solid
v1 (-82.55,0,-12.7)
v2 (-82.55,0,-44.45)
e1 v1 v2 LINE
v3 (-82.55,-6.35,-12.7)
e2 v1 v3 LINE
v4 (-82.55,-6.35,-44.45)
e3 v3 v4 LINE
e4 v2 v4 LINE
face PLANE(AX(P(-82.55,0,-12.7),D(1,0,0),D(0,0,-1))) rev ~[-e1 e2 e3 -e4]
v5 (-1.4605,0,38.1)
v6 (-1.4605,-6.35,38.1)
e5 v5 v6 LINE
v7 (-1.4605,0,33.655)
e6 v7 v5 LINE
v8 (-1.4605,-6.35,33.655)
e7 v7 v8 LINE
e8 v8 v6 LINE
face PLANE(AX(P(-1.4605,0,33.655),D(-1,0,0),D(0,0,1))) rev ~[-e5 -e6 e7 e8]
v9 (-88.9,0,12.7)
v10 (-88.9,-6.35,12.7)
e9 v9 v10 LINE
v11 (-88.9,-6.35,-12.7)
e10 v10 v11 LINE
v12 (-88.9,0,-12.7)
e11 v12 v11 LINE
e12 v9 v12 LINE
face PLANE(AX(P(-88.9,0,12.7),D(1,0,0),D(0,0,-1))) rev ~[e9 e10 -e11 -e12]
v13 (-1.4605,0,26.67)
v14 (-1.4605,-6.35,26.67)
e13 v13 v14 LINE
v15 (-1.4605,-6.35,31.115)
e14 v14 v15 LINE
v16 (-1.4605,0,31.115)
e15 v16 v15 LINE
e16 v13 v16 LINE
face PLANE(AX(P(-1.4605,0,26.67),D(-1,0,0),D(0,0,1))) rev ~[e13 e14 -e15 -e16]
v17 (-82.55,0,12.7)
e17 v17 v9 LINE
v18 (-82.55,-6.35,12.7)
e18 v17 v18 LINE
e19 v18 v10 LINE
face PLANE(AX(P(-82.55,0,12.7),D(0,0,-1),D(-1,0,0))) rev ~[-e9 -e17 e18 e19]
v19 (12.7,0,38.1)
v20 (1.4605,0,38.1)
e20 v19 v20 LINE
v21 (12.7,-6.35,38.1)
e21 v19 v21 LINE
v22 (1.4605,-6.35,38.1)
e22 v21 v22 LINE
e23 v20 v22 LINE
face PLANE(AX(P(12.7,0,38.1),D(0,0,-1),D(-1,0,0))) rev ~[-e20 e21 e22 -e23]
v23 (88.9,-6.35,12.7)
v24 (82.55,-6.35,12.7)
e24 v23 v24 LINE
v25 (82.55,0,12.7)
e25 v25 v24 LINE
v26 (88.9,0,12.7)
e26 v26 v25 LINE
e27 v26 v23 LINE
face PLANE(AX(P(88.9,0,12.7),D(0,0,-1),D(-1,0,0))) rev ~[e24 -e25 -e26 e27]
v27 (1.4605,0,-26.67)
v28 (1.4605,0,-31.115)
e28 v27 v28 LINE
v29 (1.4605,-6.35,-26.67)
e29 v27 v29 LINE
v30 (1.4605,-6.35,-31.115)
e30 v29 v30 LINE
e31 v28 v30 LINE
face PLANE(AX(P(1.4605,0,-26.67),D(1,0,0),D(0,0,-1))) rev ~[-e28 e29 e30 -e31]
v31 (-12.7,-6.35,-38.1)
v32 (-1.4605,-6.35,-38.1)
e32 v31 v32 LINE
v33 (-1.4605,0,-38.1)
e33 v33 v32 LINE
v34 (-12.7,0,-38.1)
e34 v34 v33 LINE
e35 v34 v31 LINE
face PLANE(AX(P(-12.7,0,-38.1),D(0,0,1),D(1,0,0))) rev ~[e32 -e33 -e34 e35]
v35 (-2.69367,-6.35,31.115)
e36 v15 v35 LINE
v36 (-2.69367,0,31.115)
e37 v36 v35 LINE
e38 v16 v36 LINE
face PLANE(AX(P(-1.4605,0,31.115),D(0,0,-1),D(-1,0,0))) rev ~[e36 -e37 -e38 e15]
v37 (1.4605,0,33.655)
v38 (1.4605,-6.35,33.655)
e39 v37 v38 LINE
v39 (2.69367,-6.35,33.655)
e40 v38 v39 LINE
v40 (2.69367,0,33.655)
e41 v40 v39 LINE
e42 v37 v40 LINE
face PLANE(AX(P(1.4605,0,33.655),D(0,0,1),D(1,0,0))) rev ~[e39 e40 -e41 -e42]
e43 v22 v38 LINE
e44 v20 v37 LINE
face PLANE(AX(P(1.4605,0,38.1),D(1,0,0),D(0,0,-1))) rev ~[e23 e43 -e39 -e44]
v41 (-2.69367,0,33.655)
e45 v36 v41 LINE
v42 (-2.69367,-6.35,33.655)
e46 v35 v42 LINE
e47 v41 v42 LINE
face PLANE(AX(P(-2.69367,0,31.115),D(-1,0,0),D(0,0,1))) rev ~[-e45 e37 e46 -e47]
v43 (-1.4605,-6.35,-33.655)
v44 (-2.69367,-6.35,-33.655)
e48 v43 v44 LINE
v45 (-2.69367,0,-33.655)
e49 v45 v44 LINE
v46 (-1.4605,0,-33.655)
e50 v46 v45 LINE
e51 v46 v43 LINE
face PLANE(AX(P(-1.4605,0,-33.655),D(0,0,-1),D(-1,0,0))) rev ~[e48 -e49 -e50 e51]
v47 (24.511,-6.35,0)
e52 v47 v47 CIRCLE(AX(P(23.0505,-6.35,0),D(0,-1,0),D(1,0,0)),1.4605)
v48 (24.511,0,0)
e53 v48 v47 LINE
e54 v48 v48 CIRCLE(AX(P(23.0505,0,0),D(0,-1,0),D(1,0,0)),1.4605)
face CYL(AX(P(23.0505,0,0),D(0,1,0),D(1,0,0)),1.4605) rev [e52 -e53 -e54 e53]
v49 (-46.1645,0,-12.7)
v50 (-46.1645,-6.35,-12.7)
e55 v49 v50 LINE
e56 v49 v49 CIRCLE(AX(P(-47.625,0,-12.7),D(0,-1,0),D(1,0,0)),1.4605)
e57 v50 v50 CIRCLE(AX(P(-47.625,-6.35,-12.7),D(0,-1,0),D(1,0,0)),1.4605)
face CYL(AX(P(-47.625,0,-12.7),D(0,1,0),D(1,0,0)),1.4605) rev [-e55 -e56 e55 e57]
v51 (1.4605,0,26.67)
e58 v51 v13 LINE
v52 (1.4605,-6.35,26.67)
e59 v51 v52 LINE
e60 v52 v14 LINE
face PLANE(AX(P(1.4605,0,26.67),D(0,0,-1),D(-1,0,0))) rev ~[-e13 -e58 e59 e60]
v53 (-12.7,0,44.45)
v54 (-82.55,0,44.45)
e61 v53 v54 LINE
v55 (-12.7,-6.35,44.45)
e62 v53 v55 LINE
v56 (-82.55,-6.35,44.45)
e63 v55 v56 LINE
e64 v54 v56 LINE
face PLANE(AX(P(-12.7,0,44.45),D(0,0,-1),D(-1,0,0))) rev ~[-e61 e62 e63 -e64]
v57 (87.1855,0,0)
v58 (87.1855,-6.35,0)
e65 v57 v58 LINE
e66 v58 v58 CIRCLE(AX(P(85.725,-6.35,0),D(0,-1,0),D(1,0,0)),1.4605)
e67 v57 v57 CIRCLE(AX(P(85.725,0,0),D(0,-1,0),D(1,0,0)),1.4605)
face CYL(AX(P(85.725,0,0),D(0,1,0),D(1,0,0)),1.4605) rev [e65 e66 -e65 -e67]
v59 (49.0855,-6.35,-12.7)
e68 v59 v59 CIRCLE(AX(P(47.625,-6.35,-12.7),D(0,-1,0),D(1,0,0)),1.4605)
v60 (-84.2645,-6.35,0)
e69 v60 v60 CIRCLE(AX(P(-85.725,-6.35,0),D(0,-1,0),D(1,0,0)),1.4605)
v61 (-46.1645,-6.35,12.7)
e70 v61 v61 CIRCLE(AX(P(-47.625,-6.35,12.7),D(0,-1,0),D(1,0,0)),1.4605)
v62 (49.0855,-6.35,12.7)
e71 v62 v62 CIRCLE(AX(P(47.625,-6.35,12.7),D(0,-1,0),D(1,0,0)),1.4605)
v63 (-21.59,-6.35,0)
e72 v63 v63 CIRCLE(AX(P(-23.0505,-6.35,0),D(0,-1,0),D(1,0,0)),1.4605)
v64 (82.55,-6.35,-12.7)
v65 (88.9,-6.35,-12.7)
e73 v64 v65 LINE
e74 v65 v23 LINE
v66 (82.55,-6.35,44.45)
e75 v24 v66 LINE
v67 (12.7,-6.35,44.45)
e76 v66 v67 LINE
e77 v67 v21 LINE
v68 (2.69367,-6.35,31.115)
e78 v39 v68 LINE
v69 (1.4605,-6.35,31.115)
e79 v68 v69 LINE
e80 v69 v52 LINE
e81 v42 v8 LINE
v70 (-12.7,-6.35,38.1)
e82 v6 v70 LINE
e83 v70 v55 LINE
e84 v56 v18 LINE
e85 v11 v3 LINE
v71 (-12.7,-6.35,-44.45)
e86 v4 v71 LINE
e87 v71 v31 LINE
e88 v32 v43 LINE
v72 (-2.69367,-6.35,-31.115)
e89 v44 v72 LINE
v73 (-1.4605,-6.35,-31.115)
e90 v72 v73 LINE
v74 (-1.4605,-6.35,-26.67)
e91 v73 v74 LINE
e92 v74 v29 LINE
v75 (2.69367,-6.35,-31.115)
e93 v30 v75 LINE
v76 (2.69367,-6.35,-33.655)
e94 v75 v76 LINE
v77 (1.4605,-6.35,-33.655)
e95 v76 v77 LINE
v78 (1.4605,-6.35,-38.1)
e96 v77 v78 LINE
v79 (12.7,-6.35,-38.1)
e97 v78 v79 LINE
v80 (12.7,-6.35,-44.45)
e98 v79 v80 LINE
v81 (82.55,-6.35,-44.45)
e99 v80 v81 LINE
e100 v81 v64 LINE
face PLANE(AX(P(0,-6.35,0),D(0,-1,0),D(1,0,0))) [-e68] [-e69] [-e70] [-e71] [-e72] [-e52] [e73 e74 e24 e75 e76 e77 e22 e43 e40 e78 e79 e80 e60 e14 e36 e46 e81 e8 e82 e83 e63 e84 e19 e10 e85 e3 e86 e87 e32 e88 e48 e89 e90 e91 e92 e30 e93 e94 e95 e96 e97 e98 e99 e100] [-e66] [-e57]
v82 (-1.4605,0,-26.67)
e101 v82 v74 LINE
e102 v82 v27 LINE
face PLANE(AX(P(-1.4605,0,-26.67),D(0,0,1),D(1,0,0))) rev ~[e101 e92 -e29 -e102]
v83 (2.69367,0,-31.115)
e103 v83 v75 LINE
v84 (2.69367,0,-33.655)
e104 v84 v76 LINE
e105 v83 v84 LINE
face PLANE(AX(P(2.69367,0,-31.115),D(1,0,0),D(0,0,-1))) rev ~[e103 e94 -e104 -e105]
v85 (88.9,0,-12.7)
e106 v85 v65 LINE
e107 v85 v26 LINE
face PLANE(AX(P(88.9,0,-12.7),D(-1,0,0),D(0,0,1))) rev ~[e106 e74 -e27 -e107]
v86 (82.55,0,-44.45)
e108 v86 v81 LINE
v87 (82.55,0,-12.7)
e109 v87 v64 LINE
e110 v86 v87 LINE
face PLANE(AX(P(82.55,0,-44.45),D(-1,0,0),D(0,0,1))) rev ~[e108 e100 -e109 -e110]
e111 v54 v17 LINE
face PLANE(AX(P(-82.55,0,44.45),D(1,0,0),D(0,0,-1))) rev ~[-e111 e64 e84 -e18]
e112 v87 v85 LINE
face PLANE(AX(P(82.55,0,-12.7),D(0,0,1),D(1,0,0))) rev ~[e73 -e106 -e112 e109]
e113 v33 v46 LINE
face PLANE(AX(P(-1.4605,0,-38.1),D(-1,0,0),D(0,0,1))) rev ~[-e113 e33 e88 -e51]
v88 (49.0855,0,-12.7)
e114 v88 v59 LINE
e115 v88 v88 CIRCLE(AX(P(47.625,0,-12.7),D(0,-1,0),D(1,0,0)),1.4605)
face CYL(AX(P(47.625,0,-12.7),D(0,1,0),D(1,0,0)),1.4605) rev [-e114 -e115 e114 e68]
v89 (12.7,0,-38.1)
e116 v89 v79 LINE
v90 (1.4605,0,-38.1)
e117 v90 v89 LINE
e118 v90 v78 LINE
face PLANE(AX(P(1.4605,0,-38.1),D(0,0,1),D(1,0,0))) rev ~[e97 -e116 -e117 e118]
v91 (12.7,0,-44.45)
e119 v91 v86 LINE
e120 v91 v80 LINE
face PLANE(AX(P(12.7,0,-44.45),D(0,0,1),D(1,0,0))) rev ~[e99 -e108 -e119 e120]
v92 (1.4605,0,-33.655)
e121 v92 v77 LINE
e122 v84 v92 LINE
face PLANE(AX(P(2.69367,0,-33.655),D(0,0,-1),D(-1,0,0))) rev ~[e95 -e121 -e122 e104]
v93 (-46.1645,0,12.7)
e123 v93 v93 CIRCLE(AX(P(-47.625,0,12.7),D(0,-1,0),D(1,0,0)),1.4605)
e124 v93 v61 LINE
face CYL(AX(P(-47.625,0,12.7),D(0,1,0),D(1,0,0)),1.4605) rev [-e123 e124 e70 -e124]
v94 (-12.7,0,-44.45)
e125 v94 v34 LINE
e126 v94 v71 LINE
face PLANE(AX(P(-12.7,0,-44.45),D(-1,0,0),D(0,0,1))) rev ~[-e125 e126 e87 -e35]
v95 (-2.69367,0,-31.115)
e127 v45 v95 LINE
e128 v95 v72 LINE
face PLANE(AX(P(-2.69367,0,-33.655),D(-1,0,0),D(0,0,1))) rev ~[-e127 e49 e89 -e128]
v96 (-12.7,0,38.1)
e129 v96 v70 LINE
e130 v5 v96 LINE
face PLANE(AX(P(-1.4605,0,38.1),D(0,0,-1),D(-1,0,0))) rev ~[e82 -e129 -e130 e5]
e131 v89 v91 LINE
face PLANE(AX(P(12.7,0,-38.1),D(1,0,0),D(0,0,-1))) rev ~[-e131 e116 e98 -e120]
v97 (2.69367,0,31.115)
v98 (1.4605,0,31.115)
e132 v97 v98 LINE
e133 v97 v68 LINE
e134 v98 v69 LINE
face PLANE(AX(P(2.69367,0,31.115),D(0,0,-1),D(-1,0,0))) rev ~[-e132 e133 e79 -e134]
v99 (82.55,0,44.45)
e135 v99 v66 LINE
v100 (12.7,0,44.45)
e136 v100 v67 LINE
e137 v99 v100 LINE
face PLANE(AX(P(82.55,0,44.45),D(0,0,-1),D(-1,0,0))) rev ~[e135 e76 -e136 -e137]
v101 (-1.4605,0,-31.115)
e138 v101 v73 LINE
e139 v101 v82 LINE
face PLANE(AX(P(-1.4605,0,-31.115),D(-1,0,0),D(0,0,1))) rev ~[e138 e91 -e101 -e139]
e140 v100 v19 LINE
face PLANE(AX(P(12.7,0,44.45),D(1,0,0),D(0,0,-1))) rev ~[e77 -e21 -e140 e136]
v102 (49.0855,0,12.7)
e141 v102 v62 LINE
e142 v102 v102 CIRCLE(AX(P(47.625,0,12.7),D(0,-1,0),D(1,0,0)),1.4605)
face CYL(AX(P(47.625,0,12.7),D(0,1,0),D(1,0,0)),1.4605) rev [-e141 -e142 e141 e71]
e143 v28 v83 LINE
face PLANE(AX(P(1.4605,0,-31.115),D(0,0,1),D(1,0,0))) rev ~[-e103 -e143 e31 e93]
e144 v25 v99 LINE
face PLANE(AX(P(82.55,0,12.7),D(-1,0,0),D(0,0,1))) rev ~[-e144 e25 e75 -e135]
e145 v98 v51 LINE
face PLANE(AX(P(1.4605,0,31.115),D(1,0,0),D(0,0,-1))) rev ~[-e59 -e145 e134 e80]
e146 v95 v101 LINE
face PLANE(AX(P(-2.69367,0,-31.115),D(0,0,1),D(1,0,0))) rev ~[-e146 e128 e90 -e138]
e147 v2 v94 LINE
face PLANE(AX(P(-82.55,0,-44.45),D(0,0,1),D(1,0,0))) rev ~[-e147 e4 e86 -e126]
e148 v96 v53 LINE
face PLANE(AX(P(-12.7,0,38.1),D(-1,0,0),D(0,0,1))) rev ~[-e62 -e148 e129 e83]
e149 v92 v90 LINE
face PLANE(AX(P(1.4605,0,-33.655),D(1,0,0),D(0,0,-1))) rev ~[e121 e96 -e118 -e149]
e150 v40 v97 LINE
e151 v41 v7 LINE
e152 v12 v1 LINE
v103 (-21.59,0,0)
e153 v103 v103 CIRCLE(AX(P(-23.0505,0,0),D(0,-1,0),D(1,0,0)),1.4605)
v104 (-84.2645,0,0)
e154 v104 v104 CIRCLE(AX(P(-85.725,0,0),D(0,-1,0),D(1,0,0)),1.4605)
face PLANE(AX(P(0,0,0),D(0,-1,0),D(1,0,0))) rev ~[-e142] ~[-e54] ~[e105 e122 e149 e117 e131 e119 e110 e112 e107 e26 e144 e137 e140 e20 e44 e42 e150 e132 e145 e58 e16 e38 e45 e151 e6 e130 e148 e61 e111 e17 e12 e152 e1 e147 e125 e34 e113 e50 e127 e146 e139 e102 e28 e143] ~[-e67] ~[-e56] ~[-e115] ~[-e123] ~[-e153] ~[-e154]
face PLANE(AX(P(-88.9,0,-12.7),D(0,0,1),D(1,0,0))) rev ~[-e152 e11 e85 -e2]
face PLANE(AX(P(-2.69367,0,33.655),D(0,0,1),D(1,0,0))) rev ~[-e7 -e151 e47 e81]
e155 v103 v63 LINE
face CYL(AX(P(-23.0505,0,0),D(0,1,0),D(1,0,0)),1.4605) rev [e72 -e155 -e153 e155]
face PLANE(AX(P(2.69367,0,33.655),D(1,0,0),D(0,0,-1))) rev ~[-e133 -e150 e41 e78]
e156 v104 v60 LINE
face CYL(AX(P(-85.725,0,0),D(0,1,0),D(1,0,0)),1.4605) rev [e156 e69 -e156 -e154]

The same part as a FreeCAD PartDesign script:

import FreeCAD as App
import Part
import Sketcher
Q = App.Units.Quantity

doc = App.newDocument("Part")
body = doc.addObject("PartDesign::Body", "Body")

# Sketch on XZ plane
sketch1 = body.newObject("Sketcher::SketchObject", "Sketch")
sketch1.AttachmentSupport = (doc.getObject("XZ_Plane"), [""])
sketch1.MapMode = "FlatFace"
sketch1.addGeometry([
    Part.LineSegment(App.Vector(82.5, 12.7, 0), App.Vector(82.5, 44.5, 0)),  # 0
    Part.LineSegment(App.Vector(82.5, 44.5, 0), App.Vector(12.7, 44.5, 0)),  # 1
    Part.LineSegment(App.Vector(12.7, 44.5, 0), App.Vector(12.7, 38.1, 0)),  # 2
    Part.LineSegment(App.Vector(12.7, 38.1, 0), App.Vector(1.5, 38.1, 0)),  # 3
    Part.LineSegment(App.Vector(1.5, 38.1, 0), App.Vector(1.5, 33.7, 0)),  # 4
    Part.LineSegment(App.Vector(1.5, 33.7, 0), App.Vector(2.7, 33.7, 0)),  # 5
    Part.LineSegment(App.Vector(2.7, 33.7, 0), App.Vector(2.7, 31.1, 0)),  # 6
    Part.LineSegment(App.Vector(2.7, 31.1, 0), App.Vector(1.5, 31.1, 0)),  # 7
    Part.LineSegment(App.Vector(1.5, 31.1, 0), App.Vector(1.5, 26.7, 0)),  # 8
    Part.LineSegment(App.Vector(1.5, 26.7, 0), App.Vector(-1.5, 26.7, 0)),  # 9
    Part.LineSegment(App.Vector(-1.5, 26.7, 0), App.Vector(-1.5, 31.1, 0)),  # 10
    Part.LineSegment(App.Vector(-1.5, 31.1, 0), App.Vector(-2.7, 31.1, 0)),  # 11
    Part.LineSegment(App.Vector(-2.7, 31.1, 0), App.Vector(-2.7, 33.7, 0)),  # 12
    Part.LineSegment(App.Vector(-2.7, 33.7, 0), App.Vector(-1.5, 33.7, 0)),  # 13
    Part.LineSegment(App.Vector(-1.5, 33.7, 0), App.Vector(-1.5, 38.1, 0)),  # 14
    Part.LineSegment(App.Vector(-1.5, 38.1, 0), App.Vector(-12.7, 38.1, 0)),  # 15
    Part.LineSegment(App.Vector(-12.7, 38.1, 0), App.Vector(-12.7, 44.5, 0)),  # 16
    Part.LineSegment(App.Vector(-12.7, 44.5, 0), App.Vector(-82.5, 44.5, 0)),  # 17
    Part.LineSegment(App.Vector(-82.5, 44.5, 0), App.Vector(-82.5, 12.7, 0)),  # 18
    Part.LineSegment(App.Vector(-82.5, 12.7, 0), App.Vector(-88.9, 12.7, 0)),  # 19
    Part.LineSegment(App.Vector(-88.9, 12.7, 0), App.Vector(-88.9, -12.7, 0)),  # 20
    Part.LineSegment(App.Vector(-88.9, -12.7, 0), App.Vector(-82.5, -12.7, 0)),  # 21
    Part.LineSegment(App.Vector(-82.5, -12.7, 0), App.Vector(-82.5, -44.5, 0)),  # 22
    Part.LineSegment(App.Vector(-82.5, -44.5, 0), App.Vector(-12.7, -44.5, 0)),  # 23
    Part.LineSegment(App.Vector(-12.7, -44.5, 0), App.Vector(-12.7, -38.1, 0)),  # 24
    Part.LineSegment(App.Vector(-12.7, -38.1, 0), App.Vector(-1.5, -38.1, 0)),  # 25
    Part.LineSegment(App.Vector(-1.5, -38.1, 0), App.Vector(-1.5, -33.7, 0)),  # 26
    Part.LineSegment(App.Vector(-1.5, -33.7, 0), App.Vector(-2.7, -33.7, 0)),  # 27
    Part.LineSegment(App.Vector(-2.7, -33.7, 0), App.Vector(-2.7, -31.1, 0)),  # 28
    Part.LineSegment(App.Vector(-2.7, -31.1, 0), App.Vector(-1.5, -31.1, 0)),  # 29
    Part.LineSegment(App.Vector(-1.5, -31.1, 0), App.Vector(-1.5, -26.7, 0)),  # 30
    Part.LineSegment(App.Vector(-1.5, -26.7, 0), App.Vector(1.5, -26.7, 0)),  # 31
    Part.LineSegment(App.Vector(1.5, -26.7, 0), App.Vector(1.5, -31.1, 0)),  # 32
    Part.LineSegment(App.Vector(1.5, -31.1, 0), App.Vector(2.7, -31.1, 0)),  # 33
    Part.LineSegment(App.Vector(2.7, -31.1, 0), App.Vector(2.7, -33.7, 0)),  # 34
    Part.LineSegment(App.Vector(2.7, -33.7, 0), App.Vector(1.5, -33.7, 0)),  # 35
    Part.LineSegment(App.Vector(1.5, -33.7, 0), App.Vector(1.5, -38.1, 0)),  # 36
    Part.LineSegment(App.Vector(1.5, -38.1, 0), App.Vector(12.7, -38.1, 0)),  # 37
    Part.LineSegment(App.Vector(12.7, -38.1, 0), App.Vector(12.7, -44.5, 0)),  # 38
    Part.LineSegment(App.Vector(12.7, -44.5, 0), App.Vector(82.5, -44.5, 0)),  # 39
    Part.LineSegment(App.Vector(82.5, -44.5, 0), App.Vector(82.5, -12.7, 0)),  # 40
    Part.LineSegment(App.Vector(82.5, -12.7, 0), App.Vector(88.9, -12.7, 0)),  # 41
    Part.LineSegment(App.Vector(88.9, -12.7, 0), App.Vector(88.9, 12.7, 0)),  # 42
    Part.LineSegment(App.Vector(88.9, 12.7, 0), App.Vector(82.5, 12.7, 0)),  # 43
    Part.Circle(App.Vector(-47.6, -12.7, 0), App.Vector(0, 0, 1), 1.5),  # 44
    Part.Circle(App.Vector(47.6, -12.7, 0), App.Vector(0, 0, 1), 1.5),  # 45
    Part.Circle(App.Vector(-85.7, 0, 0), App.Vector(0, 0, 1), 1.5),  # 46
    Part.Circle(App.Vector(-23.1, 0, 0), App.Vector(0, 0, 1), 1.5),  # 47
    Part.Circle(App.Vector(-47.6, 12.7, 0), App.Vector(0, 0, 1), 1.5),  # 48
    Part.Circle(App.Vector(23.1, 0, 0), App.Vector(0, 0, 1), 1.5),  # 49
    Part.Circle(App.Vector(85.7, 0, 0), App.Vector(0, 0, 1), 1.5),  # 50
    Part.Circle(App.Vector(47.6, 12.7, 0), App.Vector(0, 0, 1), 1.5),  # 51
], False)
sketch1.addConstraint([
    Sketcher.Constraint("Coincident", 0, 2, 1, 1),
    Sketcher.Constraint("Coincident", 1, 2, 2, 1),
    Sketcher.Constraint("Coincident", 2, 2, 3, 1),
    Sketcher.Constraint("Coincident", 3, 2, 4, 1),
    Sketcher.Constraint("Coincident", 4, 2, 5, 1),
    Sketcher.Constraint("Coincident", 5, 2, 6, 1),
    Sketcher.Constraint("Coincident", 6, 2, 7, 1),
    Sketcher.Constraint("Coincident", 7, 2, 8, 1),
    Sketcher.Constraint("Coincident", 8, 2, 9, 1),
    Sketcher.Constraint("Coincident", 9, 2, 10, 1),
    Sketcher.Constraint("Coincident", 10, 2, 11, 1),
    Sketcher.Constraint("Coincident", 11, 2, 12, 1),
    Sketcher.Constraint("Coincident", 12, 2, 13, 1),
    Sketcher.Constraint("Coincident", 13, 2, 14, 1),
    Sketcher.Constraint("Coincident", 14, 2, 15, 1),
    Sketcher.Constraint("Coincident", 15, 2, 16, 1),
    Sketcher.Constraint("Coincident", 16, 2, 17, 1),
    Sketcher.Constraint("Coincident", 17, 2, 18, 1),
    Sketcher.Constraint("Coincident", 18, 2, 19, 1),
    Sketcher.Constraint("Coincident", 19, 2, 20, 1),
    Sketcher.Constraint("Coincident", 20, 2, 21, 1),
    Sketcher.Constraint("Coincident", 21, 2, 22, 1),
    Sketcher.Constraint("Coincident", 22, 2, 23, 1),
    Sketcher.Constraint("Coincident", 23, 2, 24, 1),
    Sketcher.Constraint("Coincident", 24, 2, 25, 1),
    Sketcher.Constraint("Coincident", 25, 2, 26, 1),
    Sketcher.Constraint("Coincident", 26, 2, 27, 1),
    Sketcher.Constraint("Coincident", 27, 2, 28, 1),
    Sketcher.Constraint("Coincident", 28, 2, 29, 1),
    Sketcher.Constraint("Coincident", 29, 2, 30, 1),
    Sketcher.Constraint("Coincident", 30, 2, 31, 1),
    Sketcher.Constraint("Coincident", 31, 2, 32, 1),
    Sketcher.Constraint("Coincident", 32, 2, 33, 1),
    Sketcher.Constraint("Coincident", 33, 2, 34, 1),
    Sketcher.Constraint("Coincident", 34, 2, 35, 1),
    Sketcher.Constraint("Coincident", 35, 2, 36, 1),
    Sketcher.Constraint("Coincident", 36, 2, 37, 1),
    Sketcher.Constraint("Coincident", 37, 2, 38, 1),
    Sketcher.Constraint("Coincident", 38, 2, 39, 1),
    Sketcher.Constraint("Coincident", 39, 2, 40, 1),
    Sketcher.Constraint("Coincident", 40, 2, 41, 1),
    Sketcher.Constraint("Coincident", 41, 2, 42, 1),
    Sketcher.Constraint("Coincident", 42, 2, 43, 1),
    Sketcher.Constraint("Coincident", 43, 2, 0, 1),
    Sketcher.Constraint("Vertical", 0),
    Sketcher.Constraint("Horizontal", 1),
    Sketcher.Constraint("Vertical", 2),
    Sketcher.Constraint("Horizontal", 3),
    Sketcher.Constraint("Vertical", 4),
    Sketcher.Constraint("Horizontal", 5),
    Sketcher.Constraint("Vertical", 6),
    Sketcher.Constraint("Horizontal", 7),
    Sketcher.Constraint("Vertical", 8),
    Sketcher.Constraint("Horizontal", 9),
    Sketcher.Constraint("Vertical", 10),
    Sketcher.Constraint("Horizontal", 11),
    Sketcher.Constraint("Vertical", 12),
    Sketcher.Constraint("Horizontal", 13),
    Sketcher.Constraint("Vertical", 14),
    Sketcher.Constraint("Horizontal", 15),
    Sketcher.Constraint("Vertical", 16),
    Sketcher.Constraint("Horizontal", 17),
    Sketcher.Constraint("Vertical", 18),
    Sketcher.Constraint("Horizontal", 19),
    Sketcher.Constraint("Vertical", 20),
    Sketcher.Constraint("Horizontal", 21),
    Sketcher.Constraint("Vertical", 22),
    Sketcher.Constraint("Horizontal", 23),
    Sketcher.Constraint("Vertical", 24),
    Sketcher.Constraint("Horizontal", 25),
    Sketcher.Constraint("Vertical", 26),
    Sketcher.Constraint("Horizontal", 27),
    Sketcher.Constraint("Vertical", 28),
    Sketcher.Constraint("Horizontal", 29),
    Sketcher.Constraint("Vertical", 30),
    Sketcher.Constraint("Horizontal", 31),
    Sketcher.Constraint("Vertical", 32),
    Sketcher.Constraint("Horizontal", 33),
    Sketcher.Constraint("Vertical", 34),
    Sketcher.Constraint("Horizontal", 35),
    Sketcher.Constraint("Vertical", 36),
    Sketcher.Constraint("Horizontal", 37),
    Sketcher.Constraint("Vertical", 38),
    Sketcher.Constraint("Horizontal", 39),
    Sketcher.Constraint("Vertical", 40),
    Sketcher.Constraint("Horizontal", 41),
    Sketcher.Constraint("Vertical", 42),
    Sketcher.Constraint("Horizontal", 43),
    Sketcher.Constraint("Equal", 44, 45),
    Sketcher.Constraint("Equal", 45, 46),
    Sketcher.Constraint("Equal", 46, 47),
    Sketcher.Constraint("Equal", 47, 48),
    Sketcher.Constraint("Equal", 48, 49),
    Sketcher.Constraint("Equal", 49, 50),
    Sketcher.Constraint("Equal", 50, 51),
    Sketcher.Constraint("Symmetric", 45, 3, 48, 3, -1, 1),
    Sketcher.Constraint("Symmetric", 47, 3, 49, 3, -1, 1),
    Sketcher.Constraint("Symmetric", 46, 3, 50, 3, -1, 1),
    Sketcher.Constraint("Symmetric", 44, 3, 51, 3, -1, 1),
    Sketcher.Constraint("Symmetric", 0, 2, 22, 2, -1, 1),
    Sketcher.Constraint("Symmetric", 2, 2, 24, 2, -1, 1),
    Sketcher.Constraint("Symmetric", 4, 2, 26, 2, -1, 1),
    Sketcher.Constraint("Symmetric", 6, 2, 28, 2, -1, 1),
    Sketcher.Constraint("Symmetric", 8, 2, 30, 2, -1, 1),
    Sketcher.Constraint("Symmetric", 10, 2, 32, 2, -1, 1),
    Sketcher.Constraint("Symmetric", 12, 2, 34, 2, -1, 1),
    Sketcher.Constraint("Symmetric", 14, 2, 36, 2, -1, 1),
    Sketcher.Constraint("Symmetric", 16, 2, 38, 2, -1, 1),
    Sketcher.Constraint("Symmetric", 18, 2, 40, 2, -1, 1),
    Sketcher.Constraint("Symmetric", 20, 2, 42, 2, -1, 1),
    Sketcher.Constraint("Symmetric", 44, 3, 45, 3, -2),
    Sketcher.Constraint("Symmetric", 7, 2, 10, 2, -2),
    Sketcher.Constraint("Symmetric", 5, 2, 12, 2, -2),
    Sketcher.Constraint("Symmetric", 3, 2, 14, 2, -2),
    Sketcher.Constraint("Symmetric", 1, 2, 16, 2, -2),
    Sketcher.Constraint("Symmetric", 21, 2, 40, 2, -2),
    Sketcher.Constraint("PointOnObject", 46, 3, -1),
    Sketcher.Constraint("PointOnObject", 47, 3, -1),
    Sketcher.Constraint("Horizontal", 51, 3, 18, 2),
    Sketcher.Constraint("Vertical", 4, 2, 7, 2),
    Sketcher.Constraint("Equal", 43, 2),
    Sketcher.Constraint("Equal", 4, 8),
    Sketcher.Constraint("DistanceY", 20, 2, 20, 1, Q("1 in")),
    Sketcher.Constraint("Diameter", 44, Q("0.115 in")),
    Sketcher.Constraint("DistanceY", 6, 2, 6, 1, Q("0.1 in")),
    Sketcher.Constraint("DistanceY", 51, 3, 2, 2, Q("1 in")),
    Sketcher.Constraint("DistanceX", 1, 2, 1, 1, Q("2.75 in")),
    Sketcher.Constraint("DistanceX", 19, 2, 19, 1, Q("0.25 in")),
    Sketcher.Constraint("DistanceX", -1, 1, 1, 2, Q("0.5 in")),
    Sketcher.Constraint("DistanceX", 46, 3, 44, 3, Q("1.5 in")),
    Sketcher.Constraint("DistanceX", 9, 2, 9, 1, Q("0.115 in")),
    Sketcher.Constraint("DistanceY", 4, 2, 4, 1, Q("0.175 in")),
    Sketcher.Constraint("DistanceX", 44, 3, 45, 3, Q("3.75 in")),
    Sketcher.Constraint("DistanceX", 3, 2, 49, 3, Q("0.85 in")),
    Sketcher.Constraint("DistanceX", 11, 2, 6, 2, Q("0.2121 in")),
])
pad1 = body.newObject("PartDesign::Pad", "Pad")
pad1.Profile = sketch1
pad1.Length = Q("0.25 in")

doc.recompute()
